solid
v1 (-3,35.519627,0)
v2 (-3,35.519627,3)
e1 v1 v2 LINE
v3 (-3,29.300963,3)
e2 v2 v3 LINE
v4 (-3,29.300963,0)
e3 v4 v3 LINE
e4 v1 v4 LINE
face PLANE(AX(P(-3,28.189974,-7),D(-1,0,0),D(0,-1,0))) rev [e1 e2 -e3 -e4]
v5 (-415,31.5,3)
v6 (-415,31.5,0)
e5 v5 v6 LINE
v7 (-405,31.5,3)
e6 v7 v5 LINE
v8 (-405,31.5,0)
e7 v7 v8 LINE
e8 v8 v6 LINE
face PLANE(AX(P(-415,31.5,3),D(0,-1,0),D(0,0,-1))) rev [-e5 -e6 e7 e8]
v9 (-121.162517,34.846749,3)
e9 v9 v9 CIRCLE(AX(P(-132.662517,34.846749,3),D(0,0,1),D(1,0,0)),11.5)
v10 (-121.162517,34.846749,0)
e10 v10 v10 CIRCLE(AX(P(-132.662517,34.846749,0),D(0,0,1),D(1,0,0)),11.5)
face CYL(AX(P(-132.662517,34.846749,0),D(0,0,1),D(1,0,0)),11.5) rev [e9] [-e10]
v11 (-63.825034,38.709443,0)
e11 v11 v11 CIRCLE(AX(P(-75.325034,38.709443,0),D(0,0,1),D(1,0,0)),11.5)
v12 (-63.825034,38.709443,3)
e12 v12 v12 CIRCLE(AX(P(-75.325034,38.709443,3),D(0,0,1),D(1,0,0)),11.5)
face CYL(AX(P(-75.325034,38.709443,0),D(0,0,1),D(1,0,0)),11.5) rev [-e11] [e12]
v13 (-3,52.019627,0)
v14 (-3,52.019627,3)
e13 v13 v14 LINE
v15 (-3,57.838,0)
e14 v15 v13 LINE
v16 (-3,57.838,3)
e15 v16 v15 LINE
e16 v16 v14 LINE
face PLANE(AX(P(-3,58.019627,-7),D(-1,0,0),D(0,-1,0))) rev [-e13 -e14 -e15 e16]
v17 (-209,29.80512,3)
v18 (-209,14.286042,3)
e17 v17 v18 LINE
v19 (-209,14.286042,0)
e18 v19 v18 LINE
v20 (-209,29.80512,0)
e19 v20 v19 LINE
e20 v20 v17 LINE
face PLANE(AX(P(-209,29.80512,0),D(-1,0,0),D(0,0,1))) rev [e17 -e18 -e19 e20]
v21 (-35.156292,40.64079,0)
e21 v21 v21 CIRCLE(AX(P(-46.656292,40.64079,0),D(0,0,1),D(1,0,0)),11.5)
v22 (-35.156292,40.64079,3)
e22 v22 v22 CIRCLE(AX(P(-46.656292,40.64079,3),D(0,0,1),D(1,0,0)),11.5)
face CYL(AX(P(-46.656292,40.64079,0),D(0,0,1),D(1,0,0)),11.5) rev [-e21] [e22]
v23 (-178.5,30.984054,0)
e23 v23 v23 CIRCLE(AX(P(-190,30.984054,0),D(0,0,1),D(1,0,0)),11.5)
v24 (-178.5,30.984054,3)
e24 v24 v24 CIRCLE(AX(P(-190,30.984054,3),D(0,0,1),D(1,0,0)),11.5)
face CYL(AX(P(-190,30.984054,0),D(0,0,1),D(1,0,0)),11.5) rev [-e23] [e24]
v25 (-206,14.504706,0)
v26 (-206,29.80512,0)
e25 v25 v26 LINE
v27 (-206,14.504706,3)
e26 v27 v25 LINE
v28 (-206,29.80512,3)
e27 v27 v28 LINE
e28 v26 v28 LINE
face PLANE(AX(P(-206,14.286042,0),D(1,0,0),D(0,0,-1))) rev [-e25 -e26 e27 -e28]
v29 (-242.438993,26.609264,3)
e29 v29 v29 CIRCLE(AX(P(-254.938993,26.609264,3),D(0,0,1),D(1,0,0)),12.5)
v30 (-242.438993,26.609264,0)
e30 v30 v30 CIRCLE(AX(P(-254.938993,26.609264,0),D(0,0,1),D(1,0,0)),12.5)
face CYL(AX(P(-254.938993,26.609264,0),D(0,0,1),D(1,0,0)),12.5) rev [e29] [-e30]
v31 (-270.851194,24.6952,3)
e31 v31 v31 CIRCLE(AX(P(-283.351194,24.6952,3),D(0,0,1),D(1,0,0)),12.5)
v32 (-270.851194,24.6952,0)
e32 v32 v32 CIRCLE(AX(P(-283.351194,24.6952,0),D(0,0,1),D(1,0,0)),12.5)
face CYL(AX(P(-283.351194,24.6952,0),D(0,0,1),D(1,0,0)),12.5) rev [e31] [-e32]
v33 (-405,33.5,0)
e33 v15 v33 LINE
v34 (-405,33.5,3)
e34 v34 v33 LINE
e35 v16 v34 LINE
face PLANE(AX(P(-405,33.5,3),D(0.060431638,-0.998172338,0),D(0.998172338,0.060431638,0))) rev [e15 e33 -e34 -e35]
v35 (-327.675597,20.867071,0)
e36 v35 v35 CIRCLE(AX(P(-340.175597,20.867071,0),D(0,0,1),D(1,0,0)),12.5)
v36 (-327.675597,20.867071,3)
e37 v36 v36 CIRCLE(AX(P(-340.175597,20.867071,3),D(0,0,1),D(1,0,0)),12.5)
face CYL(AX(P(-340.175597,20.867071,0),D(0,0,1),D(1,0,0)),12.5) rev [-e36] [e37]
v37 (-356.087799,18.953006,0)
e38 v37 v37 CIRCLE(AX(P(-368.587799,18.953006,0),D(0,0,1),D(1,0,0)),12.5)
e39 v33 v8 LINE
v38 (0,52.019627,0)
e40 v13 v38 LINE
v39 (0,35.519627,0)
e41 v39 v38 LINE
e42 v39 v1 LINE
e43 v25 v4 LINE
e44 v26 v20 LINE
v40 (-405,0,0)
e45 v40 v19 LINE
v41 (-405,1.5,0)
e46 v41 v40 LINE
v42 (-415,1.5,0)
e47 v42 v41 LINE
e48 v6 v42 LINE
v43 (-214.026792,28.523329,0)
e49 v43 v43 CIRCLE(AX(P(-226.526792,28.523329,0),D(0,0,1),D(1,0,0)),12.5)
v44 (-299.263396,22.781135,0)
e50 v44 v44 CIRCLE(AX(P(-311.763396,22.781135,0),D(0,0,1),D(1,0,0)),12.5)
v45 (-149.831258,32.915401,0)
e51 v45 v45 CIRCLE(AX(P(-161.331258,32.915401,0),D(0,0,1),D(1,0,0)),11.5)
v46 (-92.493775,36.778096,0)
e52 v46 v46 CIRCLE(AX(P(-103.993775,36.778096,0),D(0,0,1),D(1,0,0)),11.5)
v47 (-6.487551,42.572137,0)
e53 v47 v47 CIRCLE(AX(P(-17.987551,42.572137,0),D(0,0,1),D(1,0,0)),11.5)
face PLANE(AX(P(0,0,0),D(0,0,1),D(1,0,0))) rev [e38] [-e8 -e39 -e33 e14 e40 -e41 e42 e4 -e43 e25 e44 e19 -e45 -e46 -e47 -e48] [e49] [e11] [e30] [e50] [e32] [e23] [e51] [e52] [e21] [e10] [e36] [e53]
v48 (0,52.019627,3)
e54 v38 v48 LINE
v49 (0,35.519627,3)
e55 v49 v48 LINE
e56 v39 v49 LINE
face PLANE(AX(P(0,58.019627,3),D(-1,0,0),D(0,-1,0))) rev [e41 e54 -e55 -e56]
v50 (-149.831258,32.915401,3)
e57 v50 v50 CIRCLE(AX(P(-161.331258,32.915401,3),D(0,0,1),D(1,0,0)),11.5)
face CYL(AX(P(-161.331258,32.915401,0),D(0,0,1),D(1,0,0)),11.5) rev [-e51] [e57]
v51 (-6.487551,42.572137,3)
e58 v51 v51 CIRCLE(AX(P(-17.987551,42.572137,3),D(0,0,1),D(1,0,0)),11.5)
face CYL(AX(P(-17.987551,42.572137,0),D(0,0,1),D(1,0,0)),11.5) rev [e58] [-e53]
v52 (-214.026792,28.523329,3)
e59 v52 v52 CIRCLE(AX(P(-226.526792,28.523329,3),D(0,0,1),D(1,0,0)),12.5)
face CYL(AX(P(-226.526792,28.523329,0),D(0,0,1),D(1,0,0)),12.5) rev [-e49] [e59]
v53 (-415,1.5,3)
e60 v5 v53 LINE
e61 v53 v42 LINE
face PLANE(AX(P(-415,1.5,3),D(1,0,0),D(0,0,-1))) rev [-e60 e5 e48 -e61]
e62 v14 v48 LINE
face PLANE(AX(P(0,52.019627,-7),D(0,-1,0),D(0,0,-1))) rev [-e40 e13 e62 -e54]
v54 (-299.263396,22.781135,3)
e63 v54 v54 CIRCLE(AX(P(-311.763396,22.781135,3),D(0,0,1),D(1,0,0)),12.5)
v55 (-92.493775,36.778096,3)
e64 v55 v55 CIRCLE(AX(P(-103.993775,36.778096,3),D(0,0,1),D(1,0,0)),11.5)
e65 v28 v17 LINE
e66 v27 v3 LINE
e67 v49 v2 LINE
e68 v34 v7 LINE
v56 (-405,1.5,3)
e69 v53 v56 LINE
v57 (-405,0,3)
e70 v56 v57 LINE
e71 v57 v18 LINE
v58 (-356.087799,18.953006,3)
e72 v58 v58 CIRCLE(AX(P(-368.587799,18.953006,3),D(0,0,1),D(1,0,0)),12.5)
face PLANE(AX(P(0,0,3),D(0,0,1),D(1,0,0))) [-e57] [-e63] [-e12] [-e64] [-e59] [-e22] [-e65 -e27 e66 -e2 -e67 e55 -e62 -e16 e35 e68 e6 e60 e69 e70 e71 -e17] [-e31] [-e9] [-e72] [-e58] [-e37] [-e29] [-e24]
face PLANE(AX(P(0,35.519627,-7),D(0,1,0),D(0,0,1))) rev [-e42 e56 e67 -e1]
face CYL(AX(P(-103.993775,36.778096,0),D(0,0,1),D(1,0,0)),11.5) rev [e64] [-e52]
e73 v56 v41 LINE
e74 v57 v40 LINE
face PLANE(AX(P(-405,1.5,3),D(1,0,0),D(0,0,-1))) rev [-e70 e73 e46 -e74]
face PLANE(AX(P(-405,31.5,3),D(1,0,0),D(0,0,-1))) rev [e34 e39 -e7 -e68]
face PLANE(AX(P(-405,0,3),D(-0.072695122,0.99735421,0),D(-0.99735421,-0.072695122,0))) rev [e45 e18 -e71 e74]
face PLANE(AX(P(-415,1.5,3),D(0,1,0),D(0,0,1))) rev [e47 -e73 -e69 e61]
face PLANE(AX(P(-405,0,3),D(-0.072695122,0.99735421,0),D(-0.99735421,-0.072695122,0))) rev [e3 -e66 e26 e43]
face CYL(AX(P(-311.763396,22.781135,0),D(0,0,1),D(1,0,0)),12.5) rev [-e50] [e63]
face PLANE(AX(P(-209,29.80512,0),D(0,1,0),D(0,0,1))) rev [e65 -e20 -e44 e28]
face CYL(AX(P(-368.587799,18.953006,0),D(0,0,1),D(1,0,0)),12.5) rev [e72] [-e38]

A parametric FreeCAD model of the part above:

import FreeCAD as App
import Part
import Sketcher

doc = App.newDocument("Part")
params = doc.addObject("Spreadsheet::Sheet", "Params")
for row, (alias, value) in enumerate([
    ("sketch1_width", "10 mm"),
    ("sketch1_height", "30 mm"),
    ("sketch1_height2", "2 mm"),
    ("sketch1_height3", "1.5 mm"),
    ("sketch1_height4", "28.5 mm"),
    ("pad1_length", "3 mm"),
    ("sketch2_diameter", "25 mm"),
    ("sketch2_diameter2", "23 mm"),
    ("sketch2_width", "3 mm"),
    ("sketch3_width", "3 mm"),
    ("sketch3_height", "6 mm"),
    ("pocket2_length", "10 mm"),
], start=1):
    params.set(f"A{row}", alias)
    params.set(f"B{row}", "=" + value)
    params.setAlias(f"B{row}", alias)

body = doc.addObject("PartDesign::Body", "Body")

# Sketch on XY plane
sketch1 = body.newObject("Sketcher::SketchObject", "Sketch")
sketch1.AttachmentSupport = (doc.getObject("XY_Plane"), [""])
sketch1.MapMode = "FlatFace"
sketch1.addGeometry(Part.LineSegment(App.Vector(-415, 31.5, 0), App.Vector(-415, 1.5, 0)), False)
sketch1.addGeometry(Part.LineSegment(App.Vector(-415, 1.5, 0), App.Vector(-405, 1.5, 0)), False)
sketch1.addGeometry(Part.LineSegment(App.Vector(-405, 1.5, 0), App.Vector(-405, 0, 0)), False)
sketch1.addGeometry(Part.LineSegment(App.Vector(-405, 0, 0), App.Vector(0, 29.519627, 0)), False)
sketch1.addGeometry(Part.LineSegment(App.Vector(0, 29.519627, 0), App.Vector(0, 58.019627, 0)), False)
sketch1.addGeometry(Part.LineSegment(App.Vector(0, 58.019627, 0), App.Vector(-405, 33.5, 0)), False)
sketch1.addGeometry(Part.LineSegment(App.Vector(-405, 33.5, 0), App.Vector(-405, 31.5, 0)), False)
sketch1.addGeometry(Part.LineSegment(App.Vector(-405, 31.5, 0), App.Vector(-415, 31.5, 0)), False)
sketch1.addConstraint(Sketcher.Constraint("Coincident", 0, 2, 1, 1))
sketch1.addConstraint(Sketcher.Constraint("Coincident", 1, 2, 2, 1))
sketch1.addConstraint(Sketcher.Constraint("Coincident", 2, 2, 3, 1))
sketch1.addConstraint(Sketcher.Constraint("Coincident", 3, 2, 4, 1))
sketch1.addConstraint(Sketcher.Constraint("Coincident", 4, 2, 5, 1))
sketch1.addConstraint(Sketcher.Constraint("Coincident", 5, 2, 6, 1))
sketch1.addConstraint(Sketcher.Constraint("Coincident", 6, 2, 7, 1))
sketch1.addConstraint(Sketcher.Constraint("Coincident", 7, 2, 0, 1))
sketch1.addConstraint(Sketcher.Constraint("Vertical", 0))
sketch1.addConstraint(Sketcher.Constraint("Horizontal", 1))
sketch1.addConstraint(Sketcher.Constraint("Vertical", 2))
sketch1.addConstraint(Sketcher.Constraint("Vertical", 4))
sketch1.addConstraint(Sketcher.Constraint("Vertical", 6))
sketch1.addConstraint(Sketcher.Constraint("Horizontal", 7))
sketch1.addConstraint(Sketcher.Constraint("PointOnObject", 2, 2, -1))
sketch1.addConstraint(Sketcher.Constraint("PointOnObject", 3, 2, -2))
sketch1.addConstraint(Sketcher.Constraint("Vertical", 2, 2, 5, 2))
sketch1.addConstraint(Sketcher.Constraint("DistanceX", 1, 1, 1, 2, 10.0))
sketch1.addConstraint(Sketcher.Constraint("DistanceY", 0, 2, 0, 1, 30.0))
sketch1.addConstraint(Sketcher.Constraint("DistanceY", 6, 2, 6, 1, 2.0))
sketch1.addConstraint(Sketcher.Constraint("DistanceY", 2, 2, 2, 1, 1.5))
sketch1.addConstraint(Sketcher.Constraint("DistanceY", 4, 1, 4, 2, 28.5))
sketch1.addConstraint(Sketcher.Constraint("DistanceX", 0, 2, -1, 1, 415.0))
sketch1.addConstraint(Sketcher.Constraint("Distance", 5, 405.741558))
sketch1.setExpression("Constraints[17]", "Params.sketch1_width")
sketch1.setExpression("Constraints[18]", "Params.sketch1_height")
sketch1.setExpression("Constraints[19]", "Params.sketch1_height2")
sketch1.setExpression("Constraints[20]", "Params.sketch1_height3")
sketch1.setExpression("Constraints[21]", "Params.sketch1_height4")
pad1 = body.newObject("PartDesign::Pad", "Pad")
pad1.Profile = sketch1
pad1.setExpression("Length", "Params.pad1_length")

# Sketch on XY plane
sketch2 = body.newObject("Sketcher::SketchObject", "Sketch001")
sketch2.AttachmentSupport = (doc.getObject("XY_Plane"), [""])
sketch2.MapMode = "FlatFace"
sketch2.AttachmentOffset = App.Placement(App.Vector(0, 0, 3), App.Rotation())
sketch2.addGeometry(Part.Circle(App.Vector(-368.587799, 18.953006, 0), App.Vector(0, 0, 1), 12.5), False)
sketch2.addGeometry(Part.Circle(App.Vector(-340.175597, 20.867071, 0), App.Vector(0, 0, 1), 12.5), False)
sketch2.addGeometry(Part.Circle(App.Vector(-311.763396, 22.781135, 0), App.Vector(0, 0, 1), 12.5), False)
sketch2.addGeometry(Part.Circle(App.Vector(-283.351194, 24.6952, 0), App.Vector(0, 0, 1), 12.5), False)
sketch2.addGeometry(Part.Circle(App.Vector(-254.938993, 26.609264, 0), App.Vector(0, 0, 1), 12.5), False)
sketch2.addGeometry(Part.Circle(App.Vector(-226.526792, 28.523329, 0), App.Vector(0, 0, 1), 12.5), False)
sketch2.addGeometry(Part.Circle(App.Vector(-190, 30.984054, 0), App.Vector(0, 0, 1), 11.5), False)
sketch2.addGeometry(Part.Circle(App.Vector(-161.331258, 32.915401, 0), App.Vector(0, 0, 1), 11.5), False)
sketch2.addGeometry(Part.Circle(App.Vector(-132.662517, 34.846749, 0), App.Vector(0, 0, 1), 11.5), False)
sketch2.addGeometry(Part.Circle(App.Vector(-103.993775, 36.778096, 0), App.Vector(0, 0, 1), 11.5), False)
sketch2.addGeometry(Part.Circle(App.Vector(-75.325034, 38.709443, 0), App.Vector(0, 0, 1), 11.5), False)
sketch2.addGeometry(Part.Circle(App.Vector(-46.656292, 40.64079, 0), App.Vector(0, 0, 1), 11.5), False)
sketch2.addGeometry(Part.Circle(App.Vector(-17.987551, 42.572137, 0), App.Vector(0, 0, 1), 11.5), False)
sketch2.addGeometry(Part.LineSegment(App.Vector(-209, 29.80512, 0), App.Vector(-209, 14.286042, 0)), False)
sketch2.addGeometry(Part.LineSegment(App.Vector(-209, 14.286042, 0), App.Vector(-206, 14.286042, 0)), False)
sketch2.addGeometry(Part.LineSegment(App.Vector(-206, 14.286042, 0), App.Vector(-206, 29.80512, 0)), False)
sketch2.addGeometry(Part.LineSegment(App.Vector(-206, 29.80512, 0), App.Vector(-209, 29.80512, 0)), False)
sketch2.addConstraint(Sketcher.Constraint("Coincident", 13, 2, 14, 1))
sketch2.addConstraint(Sketcher.Constraint("Coincident", 14, 2, 15, 1))
sketch2.addConstraint(Sketcher.Constraint("Coincident", 15, 2, 16, 1))
sketch2.addConstraint(Sketcher.Constraint("Coincident", 16, 2, 13, 1))
sketch2.addConstraint(Sketcher.Constraint("Vertical", 13))
sketch2.addConstraint(Sketcher.Constraint("Horizontal", 14))
sketch2.addConstraint(Sketcher.Constraint("Vertical", 15))
sketch2.addConstraint(Sketcher.Constraint("Horizontal", 16))
sketch2.addConstraint(Sketcher.Constraint("Equal", 0, 1))
sketch2.addConstraint(Sketcher.Constraint("Equal", 1, 2))
sketch2.addConstraint(Sketcher.Constraint("Equal", 2, 3))
sketch2.addConstraint(Sketcher.Constraint("Equal", 3, 4))
sketch2.addConstraint(Sketcher.Constraint("Equal", 4, 5))
sketch2.addConstraint(Sketcher.Constraint("Equal", 6, 7))
sketch2.addConstraint(Sketcher.Constraint("Equal", 7, 8))
sketch2.addConstraint(Sketcher.Constraint("Equal", 8, 9))
sketch2.addConstraint(Sketcher.Constraint("Equal", 9, 10))
sketch2.addConstraint(Sketcher.Constraint("Equal", 10, 11))
sketch2.addConstraint(Sketcher.Constraint("Equal", 11, 12))
sketch2.addConstraint(Sketcher.Constraint("Diameter", 0, 25.0))
sketch2.addConstraint(Sketcher.Constraint("Diameter", 6, 23.0))
sketch2.addConstraint(Sketcher.Constraint("DistanceX", 14, 1, 14, 2, 3.0))
sketch2.addConstraint(Sketcher.Constraint("DistanceX", 6, 3, -1, 1, 190.0))
sketch2.addConstraint(Sketcher.Constraint("DistanceX", 13, 2, -1, 1, 209.0))
sketch2.addConstraint(Sketcher.Constraint("DistanceY", 13, 2, 13, 1, 15.519078))
sketch2.addConstraint(Sketcher.Constraint("DistanceX", 0, 3, -1, 1, 368.587799))
sketch2.addConstraint(Sketcher.Constraint("DistanceY", -1, 1, 3, 3, 24.6952))
sketch2.addConstraint(Sketcher.Constraint("DistanceY", -1, 1, 7, 3, 32.915401))
sketch2.addConstraint(Sketcher.Constraint("DistanceX", 0, 3, 1, 3, 28.412201))
sketch2.addConstraint(Sketcher.Constraint("DistanceX", 1, 3, 2, 3, 28.412201))
sketch2.addConstraint(Sketcher.Constraint("DistanceX", 2, 3, 3, 3, 28.412201))
sketch2.addConstraint(Sketcher.Constraint("DistanceX", 3, 3, 4, 3, 28.412201))
sketch2.addConstraint(Sketcher.Constraint("DistanceX", 4, 3, 5, 3, 28.412201))
sketch2.addConstraint(Sketcher.Constraint("DistanceY", -1, 1, 1, 3, 20.867071))
sketch2.addConstraint(Sketcher.Constraint("DistanceY", -1, 1, 5, 3, 28.523329))
sketch2.addConstraint(Sketcher.Constraint("DistanceX", 7, 3, -1, 1, 161.331258))
sketch2.addConstraint(Sketcher.Constraint("DistanceY", -1, 1, 8, 3, 34.846749))
sketch2.addConstraint(Sketcher.Constraint("DistanceY", -1, 1, 11, 3, 40.64079))
sketch2.addConstraint(Sketcher.Constraint("DistanceX", 12, 3, -1, 1, 17.987551))
sketch2.addConstraint(Sketcher.Constraint("DistanceY", -1, 1, 13, 2, 14.286042))
sketch2.addConstraint(Sketcher.Constraint("DistanceY", 0, 3, 2, 3, 3.828129))
sketch2.addConstraint(Sketcher.Constraint("DistanceY", 2, 3, 4, 3, 3.828129))
sketch2.addConstraint(Sketcher.Constraint("DistanceY", 4, 3, 6, 3, 4.37479))
sketch2.addConstraint(Sketcher.Constraint("DistanceX", 7, 3, 8, 3, 28.668742))
sketch2.addConstraint(Sketcher.Constraint("DistanceX", 8, 3, 9, 3, 28.668742))
sketch2.addConstraint(Sketcher.Constraint("DistanceY", 6, 3, 9, 3, 5.794041))
sketch2.addConstraint(Sketcher.Constraint("DistanceX", 9, 3, 10, 3, 28.668742))
sketch2.addConstraint(Sketcher.Constraint("DistanceY", 7, 3, 10, 3, 5.794041))
sketch2.addConstraint(Sketcher.Constraint("DistanceY", 6, 3, 10, 3, 7.725388))
sketch2.addConstraint(Sketcher.Constraint("DistanceX", 10, 3, 11, 3, 28.668742))
sketch2.addConstraint(Sketcher.Constraint("DistanceY", 9, 3, 12, 3, 5.794041))
sketch2.setExpression("Constraints[19]", "Params.sketch2_diameter")
sketch2.setExpression("Constraints[20]", "Params.sketch2_diameter2")
sketch2.setExpression("Constraints[21]", "Params.sketch2_width")
pocket1 = body.newObject("PartDesign::Pocket", "Pocket")
pocket1.Profile = sketch2
pocket1.Type = "ThroughAll"
pocket1.Midplane = True

# Sketch on XY plane
sketch3 = body.newObject("Sketcher::SketchObject", "Sketch002")
sketch3.AttachmentSupport = (doc.getObject("XY_Plane"), [""])
sketch3.MapMode = "FlatFace"
sketch3.AttachmentOffset = App.Placement(App.Vector(0, 0, 3), App.Rotation())
sketch3.addGeometry(Part.LineSegment(App.Vector(-3, 58.019627, 0), App.Vector(-3, 52.019627, 0)), False)
sketch3.addGeometry(Part.LineSegment(App.Vector(-3, 52.019627, 0), App.Vector(0, 52.019627, 0)), False)
sketch3.addGeometry(Part.LineSegment(App.Vector(0, 52.019627, 0), App.Vector(0, 58.019627, 0)), False)
sketch3.addGeometry(Part.LineSegment(App.Vector(0, 58.019627, 0), App.Vector(-3, 58.019627, 0)), False)
sketch3.addGeometry(Part.LineSegment(App.Vector(-3, 35.519627, 0), App.Vector(-3, 28.189974, 0)), False)
sketch3.addGeometry(Part.LineSegment(App.Vector(-3, 28.189974, 0), App.Vector(0, 28.189974, 0)), False)
sketch3.addGeometry(Part.LineSegment(App.Vector(0, 28.189974, 0), App.Vector(0, 35.519627, 0)), False)
sketch3.addGeometry(Part.LineSegment(App.Vector(0, 35.519627, 0), App.Vector(-3, 35.519627, 0)), False)
sketch3.addConstraint(Sketcher.Constraint("Coincident", 0, 2, 1, 1))
sketch3.addConstraint(Sketcher.Constraint("Coincident", 1, 2, 2, 1))
sketch3.addConstraint(Sketcher.Constraint("Coincident", 2, 2, 3, 1))
sketch3.addConstraint(Sketcher.Constraint("Coincident", 3, 2, 0, 1))
sketch3.addConstraint(Sketcher.Constraint("Coincident", 4, 2, 5, 1))
sketch3.addConstraint(Sketcher.Constraint("Coincident", 5, 2, 6, 1))
sketch3.addConstraint(Sketcher.Constraint("Coincident", 6, 2, 7, 1))
sketch3.addConstraint(Sketcher.Constraint("Coincident", 7, 2, 4, 1))
sketch3.addConstraint(Sketcher.Constraint("Vertical", 0))
sketch3.addConstraint(Sketcher.Constraint("Horizontal", 1))
sketch3.addConstraint(Sketcher.Constraint("Vertical", 2))
sketch3.addConstraint(Sketcher.Constraint("Horizontal", 3))
sketch3.addConstraint(Sketcher.Constraint("Vertical", 4))
sketch3.addConstraint(Sketcher.Constraint("Horizontal", 5))
sketch3.addConstraint(Sketcher.Constraint("Vertical", 6))
sketch3.addConstraint(Sketcher.Constraint("Horizontal", 7))
sketch3.addConstraint(Sketcher.Constraint("PointOnObject", 1, 2, -2))
sketch3.addConstraint(Sketcher.Constraint("PointOnObject", 5, 2, -2))
sketch3.addConstraint(Sketcher.Constraint("Vertical", 3, 2, 4, 2))
sketch3.addConstraint(Sketcher.Constraint("DistanceX", 1, 1, 1, 2, 3.0))
sketch3.addConstraint(Sketcher.Constraint("DistanceY", 0, 2, 0, 1, 6.0))
sketch3.addConstraint(Sketcher.Constraint("DistanceY", 6, 2, 1, 2, 16.5))
sketch3.addConstraint(Sketcher.Constraint("DistanceY", 4, 2, 4, 1, 7.329653))
sketch3.addConstraint(Sketcher.Constraint("DistanceY", -1, 1, 0, 2, 52.019627))
sketch3.setExpression("Constraints[19]", "Params.sketch3_width")
sketch3.setExpression("Constraints[20]", "Params.sketch3_height")
pocket2 = body.newObject("PartDesign::Pocket", "Pocket001")
pocket2.Profile = sketch3
pocket2.setExpression("Length", "Params.pocket2_length")

doc.recompute()
